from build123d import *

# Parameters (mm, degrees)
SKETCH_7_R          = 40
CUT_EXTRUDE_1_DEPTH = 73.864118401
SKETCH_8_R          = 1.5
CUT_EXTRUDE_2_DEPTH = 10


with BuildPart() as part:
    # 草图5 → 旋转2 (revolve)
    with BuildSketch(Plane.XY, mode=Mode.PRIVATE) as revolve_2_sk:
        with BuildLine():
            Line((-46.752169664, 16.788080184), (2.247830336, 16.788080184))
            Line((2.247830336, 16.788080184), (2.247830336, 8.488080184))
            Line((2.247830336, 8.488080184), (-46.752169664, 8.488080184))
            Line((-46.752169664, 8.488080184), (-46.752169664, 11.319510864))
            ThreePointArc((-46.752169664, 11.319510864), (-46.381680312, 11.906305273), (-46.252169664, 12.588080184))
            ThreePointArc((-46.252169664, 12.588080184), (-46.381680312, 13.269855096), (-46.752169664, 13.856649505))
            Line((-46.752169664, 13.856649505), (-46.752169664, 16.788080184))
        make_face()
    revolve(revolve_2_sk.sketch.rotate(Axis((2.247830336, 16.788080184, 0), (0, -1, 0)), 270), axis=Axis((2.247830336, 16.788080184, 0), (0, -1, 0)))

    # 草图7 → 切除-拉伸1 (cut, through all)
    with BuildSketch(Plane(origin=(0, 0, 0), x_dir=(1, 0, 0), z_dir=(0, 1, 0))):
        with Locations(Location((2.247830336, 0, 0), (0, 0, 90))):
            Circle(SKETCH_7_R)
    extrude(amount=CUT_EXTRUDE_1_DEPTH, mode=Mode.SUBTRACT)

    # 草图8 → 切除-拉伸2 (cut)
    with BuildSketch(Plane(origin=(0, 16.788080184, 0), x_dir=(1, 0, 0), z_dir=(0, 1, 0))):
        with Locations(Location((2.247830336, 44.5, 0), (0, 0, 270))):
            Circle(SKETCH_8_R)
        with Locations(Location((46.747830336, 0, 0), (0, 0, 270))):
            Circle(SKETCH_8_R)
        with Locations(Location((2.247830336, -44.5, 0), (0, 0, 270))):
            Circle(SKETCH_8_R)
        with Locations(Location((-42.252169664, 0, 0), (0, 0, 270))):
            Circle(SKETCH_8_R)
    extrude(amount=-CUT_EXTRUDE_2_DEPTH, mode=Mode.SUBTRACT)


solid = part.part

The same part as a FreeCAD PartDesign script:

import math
import FreeCAD as App
import Part
import Sketcher
from FreeCAD import Vector
Q = App.Units.Quantity

doc = App.newDocument("Part")
body = doc.addObject("PartDesign::Body", "Body")

# Sketch on XY plane
sketch1 = doc.addObject("Sketcher::SketchObject", "Sketch")
body.addObject(sketch1)
sketch1.AttachmentSupport = (doc.XY_Plane, [""])
sketch1.MapMode = "FlatFace"
sketch1.addGeometry(Part.LineSegment(Vector(2.24783, 16.78808, 0), Vector(-46.75217, 16.78808, 0)), False)
sketch1.addGeometry(Part.LineSegment(Vector(-46.75217, 16.78808, 0), Vector(-46.75217, 13.85665, 0)), False)
sketch1.addGeometry(Part.ArcOfCircle(Part.Circle(Vector(-48.111438, 12.58808, 0), Vector(0, 0, 1), 1.859268), math.radians(0), math.radians(43.023243)), False)
sketch1.addGeometry(Part.ArcOfCircle(Part.Circle(Vector(-48.111438, 12.58808, 0), Vector(0, 0, 1), 1.859268), math.radians(-43.023243), math.radians(0)), False)
sketch1.addGeometry(Part.LineSegment(Vector(-46.75217, 11.319511, 0), Vector(-46.75217, 8.48808, 0)), False)
sketch1.addGeometry(Part.LineSegment(Vector(-46.75217, 8.48808, 0), Vector(2.24783, 8.48808, 0)), False)
sketch1.addGeometry(Part.LineSegment(Vector(2.24783, 8.48808, 0), Vector(2.24783, 16.78808, 0)), False)
sketch1.addGeometry(Part.LineSegment(Vector(2.24783, 16.78808, 0), Vector(2.24783, 8.48808, 0)), True)  # axis
sketch1.addConstraint(Sketcher.Constraint("Coincident", 0, 2, 1, 1))
sketch1.addConstraint(Sketcher.Constraint("Coincident", 1, 2, 2, 2))
sketch1.addConstraint(Sketcher.Constraint("Tangent", 2, 1, 3, 2))
sketch1.addConstraint(Sketcher.Constraint("Coincident", 3, 1, 4, 1))
sketch1.addConstraint(Sketcher.Constraint("Coincident", 4, 2, 5, 1))
sketch1.addConstraint(Sketcher.Constraint("Coincident", 5, 2, 6, 1))
sketch1.addConstraint(Sketcher.Constraint("Coincident", 6, 2, 0, 1))
sketch1.addConstraint(Sketcher.Constraint("Horizontal", 0))
sketch1.addConstraint(Sketcher.Constraint("Vertical", 1))
sketch1.addConstraint(Sketcher.Constraint("Vertical", 4))
sketch1.addConstraint(Sketcher.Constraint("Horizontal", 5))
sketch1.addConstraint(Sketcher.Constraint("Vertical", 6))
sketch1.addConstraint(Sketcher.Constraint("Vertical", 7))
sketch1.addConstraint(Sketcher.Constraint("Coincident", 7, 1, 6, 2))
sketch1.addConstraint(Sketcher.Constraint("Equal", 2, 3))
sketch1.addConstraint(Sketcher.Constraint("Horizontal", 3, 3, 2, 1))
sketch1.addConstraint(Sketcher.Constraint("Horizontal", 4, 2, 7, 2))
sketch1.addConstraint(Sketcher.Constraint("Vertical", 1, 2, 3, 1))
sketch1.addConstraint(Sketcher.Constraint("DistanceX", 0, 2, 0, 1, Q("49 mm")))
sketch1.addConstraint(Sketcher.Constraint("DistanceY", 6, 1, 6, 2, Q("8.3 mm")))
sketch1.addConstraint(Sketcher.Constraint("DistanceY", 3, 3, 0, 2, Q("4.2 mm")))
sketch1.addConstraint(Sketcher.Constraint("DistanceX", 1, 2, 2, 1, Q("0.5 mm")))
sketch1.addConstraint(Sketcher.Constraint("Radius", 2, Q("1.859268 mm")))
sketch1.addConstraint(Sketcher.Constraint("DistanceY", -1, 1, 2, 3, Q("12.58808 mm")))
sketch1.addConstraint(Sketcher.Constraint("DistanceX", 0, 2, -1, 1, Q("46.75217 mm")))
revolution = doc.addObject("PartDesign::Revolution", "Revolution")
body.addObject(revolution)
revolution.Profile = sketch1
revolution.ReferenceAxis = (sketch1, ["Axis0"])
revolution.Angle = 360

# Sketch on XZ plane
sketch2 = doc.addObject("Sketcher::SketchObject", "Sketch001")
body.addObject(sketch2)
sketch2.AttachmentSupport = (doc.XZ_Plane, [""])
sketch2.MapMode = "FlatFace"
sketch2.addGeometry(Part.Circle(Vector(2.24783, 0, 0), Vector(0, 0, 1), 40), False)
sketch2.addConstraint(Sketcher.Constraint("PointOnObject", 0, 3, -1))
sketch2.addConstraint(Sketcher.Constraint("Diameter", 0, Q("80 mm")))
sketch2.addConstraint(Sketcher.Constraint("DistanceX", -1, 1, 0, 3, Q("2.24783 mm")))
pocket1 = doc.addObject("PartDesign::Pocket", "Pocket")
body.addObject(pocket1)
pocket1.Profile = sketch2
pocket1.Type = "ThroughAll"

# Sketch on XZ plane
sketch3 = doc.addObject("Sketcher::SketchObject", "Sketch002")
body.addObject(sketch3)
sketch3.AttachmentSupport = (doc.XZ_Plane, [""])
sketch3.MapMode = "FlatFace"
sketch3.AttachmentOffset = App.Placement(Vector(0, 0, -16.78808), App.Rotation())
sketch3.addGeometry(Part.Circle(Vector(2.24783, -44.5, 0), Vector(0, 0, 1), 1.5), False)
sketch3.addGeometry(Part.Circle(Vector(46.74783, 0, 0), Vector(0, 0, 1), 1.5), False)
sketch3.addGeometry(Part.Circle(Vector(2.24783, 44.5, 0), Vector(0, 0, 1), 1.5), False)
sketch3.addGeometry(Part.Circle(Vector(-42.25217, 0, 0), Vector(0, 0, 1), 1.5), False)
sketch3.addConstraint(Sketcher.Constraint("Equal", 0, 1))
sketch3.addConstraint(Sketcher.Constraint("Equal", 1, 2))
sketch3.addConstraint(Sketcher.Constraint("Equal", 2, 3))
sketch3.addConstraint(Sketcher.Constraint("Symmetric", 0, 3, 2, 3, -1))
sketch3.addConstraint(Sketcher.Constraint("PointOnObject", 1, 3, -1))
sketch3.addConstraint(Sketcher.Constraint("PointOnObject", 3, 3, -1))
sketch3.addConstraint(Sketcher.Constraint("Diameter", 0, Q("3 mm")))
sketch3.addConstraint(Sketcher.Constraint("DistanceY", 0, 3, 2, 3, Q("89 mm")))
sketch3.addConstraint(Sketcher.Constraint("DistanceX", 3, 3, 1, 3, Q("89 mm")))
sketch3.addConstraint(Sketcher.Constraint("DistanceX", 0, 3, 1, 3, Q("44.5 mm")))
sketch3.addConstraint(Sketcher.Constraint("DistanceX", -1, 1, 0, 3, Q("2.24783 mm")))
pocket2 = doc.addObject("PartDesign::Pocket", "Pocket001")
body.addObject(pocket2)
pocket2.Profile = sketch3
pocket2.Length = 10
pocket2.Reversed = True

doc.recompute()
